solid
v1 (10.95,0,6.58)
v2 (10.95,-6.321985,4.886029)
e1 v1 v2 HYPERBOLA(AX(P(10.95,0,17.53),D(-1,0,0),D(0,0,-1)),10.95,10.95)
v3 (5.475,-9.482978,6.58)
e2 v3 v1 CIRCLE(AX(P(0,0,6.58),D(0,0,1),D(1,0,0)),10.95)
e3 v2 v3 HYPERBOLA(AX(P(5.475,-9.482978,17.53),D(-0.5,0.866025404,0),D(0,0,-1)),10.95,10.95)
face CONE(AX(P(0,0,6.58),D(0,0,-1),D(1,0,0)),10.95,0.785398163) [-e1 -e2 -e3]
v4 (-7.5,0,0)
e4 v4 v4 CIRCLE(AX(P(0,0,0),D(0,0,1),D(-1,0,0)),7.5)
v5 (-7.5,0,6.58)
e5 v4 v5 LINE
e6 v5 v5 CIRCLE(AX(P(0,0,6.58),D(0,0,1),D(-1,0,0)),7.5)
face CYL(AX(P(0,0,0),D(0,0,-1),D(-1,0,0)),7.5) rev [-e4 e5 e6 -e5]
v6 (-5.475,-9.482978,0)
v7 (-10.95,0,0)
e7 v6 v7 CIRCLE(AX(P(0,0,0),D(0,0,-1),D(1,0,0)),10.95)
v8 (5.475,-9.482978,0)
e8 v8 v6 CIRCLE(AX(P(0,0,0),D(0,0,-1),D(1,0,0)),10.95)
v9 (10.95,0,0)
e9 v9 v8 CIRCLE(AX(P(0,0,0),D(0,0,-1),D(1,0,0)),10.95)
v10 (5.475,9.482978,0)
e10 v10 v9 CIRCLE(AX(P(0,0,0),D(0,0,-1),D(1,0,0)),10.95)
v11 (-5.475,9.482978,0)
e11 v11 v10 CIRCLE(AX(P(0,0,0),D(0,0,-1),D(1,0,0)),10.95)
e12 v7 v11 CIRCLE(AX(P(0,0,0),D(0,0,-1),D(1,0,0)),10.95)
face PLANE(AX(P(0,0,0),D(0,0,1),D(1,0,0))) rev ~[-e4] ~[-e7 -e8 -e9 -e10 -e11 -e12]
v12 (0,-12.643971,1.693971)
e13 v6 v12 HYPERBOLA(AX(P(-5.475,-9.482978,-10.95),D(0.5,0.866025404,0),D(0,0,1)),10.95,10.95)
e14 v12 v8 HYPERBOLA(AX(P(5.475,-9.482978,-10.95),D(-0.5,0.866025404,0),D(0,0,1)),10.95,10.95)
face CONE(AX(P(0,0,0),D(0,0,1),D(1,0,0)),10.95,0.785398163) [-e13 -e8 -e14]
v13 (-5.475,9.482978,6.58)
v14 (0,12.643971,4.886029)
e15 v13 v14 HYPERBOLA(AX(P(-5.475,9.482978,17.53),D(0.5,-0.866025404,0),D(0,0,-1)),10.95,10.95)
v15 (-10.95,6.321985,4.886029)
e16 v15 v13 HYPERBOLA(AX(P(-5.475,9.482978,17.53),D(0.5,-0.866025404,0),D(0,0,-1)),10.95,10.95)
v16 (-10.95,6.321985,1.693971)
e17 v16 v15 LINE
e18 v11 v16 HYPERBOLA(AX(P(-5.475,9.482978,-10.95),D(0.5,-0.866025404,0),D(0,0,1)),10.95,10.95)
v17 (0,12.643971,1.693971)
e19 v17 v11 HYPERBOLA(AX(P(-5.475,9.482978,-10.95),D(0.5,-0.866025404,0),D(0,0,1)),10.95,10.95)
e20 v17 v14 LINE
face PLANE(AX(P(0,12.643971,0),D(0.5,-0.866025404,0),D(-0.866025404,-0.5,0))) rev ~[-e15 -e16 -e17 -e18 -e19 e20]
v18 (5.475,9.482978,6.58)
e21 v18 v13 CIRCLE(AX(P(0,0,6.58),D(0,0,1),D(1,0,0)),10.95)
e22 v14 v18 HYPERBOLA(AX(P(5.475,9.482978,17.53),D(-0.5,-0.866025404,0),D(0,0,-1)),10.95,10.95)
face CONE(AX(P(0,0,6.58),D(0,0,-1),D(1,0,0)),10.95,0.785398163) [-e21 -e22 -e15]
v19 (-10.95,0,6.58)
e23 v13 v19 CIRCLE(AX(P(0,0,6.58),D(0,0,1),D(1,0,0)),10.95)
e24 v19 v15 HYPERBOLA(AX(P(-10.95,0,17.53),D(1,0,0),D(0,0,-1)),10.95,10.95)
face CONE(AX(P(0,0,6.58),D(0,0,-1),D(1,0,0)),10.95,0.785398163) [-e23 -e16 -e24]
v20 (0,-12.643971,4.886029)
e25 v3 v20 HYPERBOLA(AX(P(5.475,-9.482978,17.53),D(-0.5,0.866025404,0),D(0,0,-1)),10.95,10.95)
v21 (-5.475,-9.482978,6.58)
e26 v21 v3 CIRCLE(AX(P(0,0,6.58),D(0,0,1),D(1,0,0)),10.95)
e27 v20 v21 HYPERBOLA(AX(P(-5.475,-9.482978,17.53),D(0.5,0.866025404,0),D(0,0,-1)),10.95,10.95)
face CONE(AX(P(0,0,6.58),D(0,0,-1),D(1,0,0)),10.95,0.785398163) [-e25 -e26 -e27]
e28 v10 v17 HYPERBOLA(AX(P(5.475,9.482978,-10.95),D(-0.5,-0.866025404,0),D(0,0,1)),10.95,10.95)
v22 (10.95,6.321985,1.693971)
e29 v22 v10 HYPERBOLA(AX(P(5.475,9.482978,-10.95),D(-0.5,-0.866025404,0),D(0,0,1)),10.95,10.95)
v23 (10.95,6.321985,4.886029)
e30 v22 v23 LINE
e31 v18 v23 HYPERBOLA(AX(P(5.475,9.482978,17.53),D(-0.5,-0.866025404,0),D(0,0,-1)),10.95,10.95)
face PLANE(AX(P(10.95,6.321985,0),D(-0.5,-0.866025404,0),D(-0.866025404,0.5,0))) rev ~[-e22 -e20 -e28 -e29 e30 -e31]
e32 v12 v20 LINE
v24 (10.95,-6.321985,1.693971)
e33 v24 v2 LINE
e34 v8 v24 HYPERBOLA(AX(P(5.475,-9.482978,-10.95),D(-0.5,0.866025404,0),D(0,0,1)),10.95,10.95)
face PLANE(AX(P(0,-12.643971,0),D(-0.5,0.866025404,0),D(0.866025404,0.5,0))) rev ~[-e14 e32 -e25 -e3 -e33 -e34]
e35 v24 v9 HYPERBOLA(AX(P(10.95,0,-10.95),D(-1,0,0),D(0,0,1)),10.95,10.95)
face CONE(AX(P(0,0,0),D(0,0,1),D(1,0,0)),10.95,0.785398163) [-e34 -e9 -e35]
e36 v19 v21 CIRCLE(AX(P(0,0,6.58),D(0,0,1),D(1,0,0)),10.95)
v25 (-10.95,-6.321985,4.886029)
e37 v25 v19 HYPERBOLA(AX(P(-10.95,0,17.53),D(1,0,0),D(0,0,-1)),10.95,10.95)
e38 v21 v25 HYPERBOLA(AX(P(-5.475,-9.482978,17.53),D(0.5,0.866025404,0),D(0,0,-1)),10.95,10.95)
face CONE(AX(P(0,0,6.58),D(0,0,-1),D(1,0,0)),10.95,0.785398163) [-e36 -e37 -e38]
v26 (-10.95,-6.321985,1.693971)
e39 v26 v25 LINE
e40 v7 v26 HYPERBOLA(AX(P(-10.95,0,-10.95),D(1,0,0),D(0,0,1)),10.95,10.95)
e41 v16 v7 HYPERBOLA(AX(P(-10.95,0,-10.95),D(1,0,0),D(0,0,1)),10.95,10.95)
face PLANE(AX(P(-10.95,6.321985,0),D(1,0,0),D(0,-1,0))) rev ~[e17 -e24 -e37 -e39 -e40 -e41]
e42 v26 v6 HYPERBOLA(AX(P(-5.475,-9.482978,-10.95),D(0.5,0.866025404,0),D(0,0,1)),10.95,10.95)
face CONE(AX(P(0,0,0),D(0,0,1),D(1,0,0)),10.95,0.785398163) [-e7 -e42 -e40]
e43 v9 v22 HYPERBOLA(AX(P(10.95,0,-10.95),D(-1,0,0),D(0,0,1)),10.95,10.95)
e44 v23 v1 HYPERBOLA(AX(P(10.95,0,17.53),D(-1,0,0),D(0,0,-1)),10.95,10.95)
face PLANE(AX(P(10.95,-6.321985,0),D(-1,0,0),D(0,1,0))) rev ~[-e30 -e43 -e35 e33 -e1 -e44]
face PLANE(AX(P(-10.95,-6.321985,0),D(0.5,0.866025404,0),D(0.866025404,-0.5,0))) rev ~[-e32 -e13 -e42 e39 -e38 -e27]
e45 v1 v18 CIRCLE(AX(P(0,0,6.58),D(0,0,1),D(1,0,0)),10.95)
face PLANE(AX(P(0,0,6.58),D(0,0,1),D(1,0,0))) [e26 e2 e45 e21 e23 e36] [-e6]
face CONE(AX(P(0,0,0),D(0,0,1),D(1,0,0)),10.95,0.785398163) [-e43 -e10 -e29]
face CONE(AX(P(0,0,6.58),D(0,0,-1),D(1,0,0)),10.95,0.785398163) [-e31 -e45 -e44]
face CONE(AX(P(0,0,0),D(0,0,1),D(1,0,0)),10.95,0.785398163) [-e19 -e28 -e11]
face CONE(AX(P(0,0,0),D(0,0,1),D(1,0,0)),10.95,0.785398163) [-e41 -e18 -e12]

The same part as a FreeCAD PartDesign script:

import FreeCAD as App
import Part
import Sketcher
from FreeCAD import Vector
Q = App.Units.Quantity


def faces_at(feature, points):
    """Names of the faces that lie closest to the given points."""
    faces = feature.Shape.Faces
    near = lambda p: min(range(len(faces)), key=lambda i: faces[i].distToShape(Part.Vertex(*p))[0])
    return sorted({f"Face{near(p) + 1}" for p in points})

doc = App.newDocument("Part")
body = doc.addObject("PartDesign::Body", "Body")

sketch1 = body.newObject("Sketcher::SketchObject", "Sketch")
sketch1.AttachmentSupport = (doc.getObject("XY_Plane"), [""])
sketch1.MapMode = "FlatFace"
sketch1.addGeometry(Part.LineSegment(Vector(0, 12.643971, 0), Vector(-10.95, 6.321985, 0)), False)
sketch1.addGeometry(Part.LineSegment(Vector(-10.95, 6.321985, 0), Vector(-10.95, -6.321985, 0)), False)
sketch1.addGeometry(Part.LineSegment(Vector(-10.95, -6.321985, 0), Vector(0, -12.643971, 0)), False)
sketch1.addGeometry(Part.LineSegment(Vector(0, -12.643971, 0), Vector(10.95, -6.321985, 0)), False)
sketch1.addGeometry(Part.LineSegment(Vector(10.95, -6.321985, 0), Vector(10.95, 6.321985, 0)), False)
sketch1.addGeometry(Part.LineSegment(Vector(10.95, 6.321985, 0), Vector(0, 12.643971, 0)), False)
sketch1.addGeometry(Part.Circle(Vector(0, 0, 0), Vector(0, 0, 1), 7.5), False)
sketch1.addConstraint(Sketcher.Constraint("Coincident", 0, 2, 1, 1))
sketch1.addConstraint(Sketcher.Constraint("Coincident", 1, 2, 2, 1))
sketch1.addConstraint(Sketcher.Constraint("Coincident", 2, 2, 3, 1))
sketch1.addConstraint(Sketcher.Constraint("Coincident", 3, 2, 4, 1))
sketch1.addConstraint(Sketcher.Constraint("Coincident", 4, 2, 5, 1))
sketch1.addConstraint(Sketcher.Constraint("Coincident", 5, 2, 0, 1))
sketch1.addConstraint(Sketcher.Constraint("Vertical", 1))
sketch1.addConstraint(Sketcher.Constraint("Vertical", 4))
sketch1.addConstraint(Sketcher.Constraint("Coincident", 6, 3, -1, 1))
sketch1.addConstraint(Sketcher.Constraint("Symmetric", 0, 2, 3, 2, -1, 1))
sketch1.addConstraint(Sketcher.Constraint("Symmetric", 2, 2, 5, 2, -1, 1))
sketch1.addConstraint(Sketcher.Constraint("PointOnObject", 2, 2, -2))
sketch1.addConstraint(Sketcher.Constraint("Parallel", 2, 5))
sketch1.addConstraint(Sketcher.Constraint("Horizontal", 1, 2, 3, 2))
sketch1.addConstraint(Sketcher.Constraint("Diameter", 6, Q("15 mm")))
sketch1.addConstraint(Sketcher.Constraint("Angle", 0, Q("-150 deg")))
sketch1.addConstraint(Sketcher.Constraint("DistanceX", 1, 2, 3, 2, Q("21.9 mm")))
sketch1.addConstraint(Sketcher.Constraint("DistanceY", 1, 2, 1, 1, Q("12.643971 mm")))
pad1 = body.newObject("PartDesign::Pad", "Pad")
pad1.Profile = sketch1
pad1.Length = 6.58
body2 = doc.addObject("PartDesign::Body", "Body001")

sketch2 = body2.newObject("Sketcher::SketchObject", "Sketch001")
sketch2.AttachmentSupport = (doc.getObject("XY_Plane001"), [""])
sketch2.MapMode = "FlatFace"
sketch2.AttachmentOffset = App.Placement(Vector(0, 0, 6.58), App.Rotation())
sketch2.addGeometry(Part.LineSegment(Vector(-21.939, 23.633, 0), Vector(-21.939, -23.633, 0)), False)
sketch2.addGeometry(Part.LineSegment(Vector(-21.939, -23.633, 0), Vector(21.939, -23.633, 0)), False)
sketch2.addGeometry(Part.LineSegment(Vector(21.939, -23.633, 0), Vector(21.939, 23.633, 0)), False)
sketch2.addGeometry(Part.LineSegment(Vector(21.939, 23.633, 0), Vector(-21.939, 23.633, 0)), False)
sketch2.addGeometry(Part.Circle(Vector(0, 0, 0), Vector(0, 0, 1), 10.95), False)
sketch2.addConstraint(Sketcher.Constraint("Coincident", 0, 2, 1, 1))
sketch2.addConstraint(Sketcher.Constraint("Coincident", 1, 2, 2, 1))
sketch2.addConstraint(Sketcher.Constraint("Coincident", 2, 2, 3, 1))
sketch2.addConstraint(Sketcher.Constraint("Coincident", 3, 2, 0, 1))
sketch2.addConstraint(Sketcher.Constraint("Vertical", 0))
sketch2.addConstraint(Sketcher.Constraint("Horizontal", 1))
sketch2.addConstraint(Sketcher.Constraint("Vertical", 2))
sketch2.addConstraint(Sketcher.Constraint("Horizontal", 3))
sketch2.addConstraint(Sketcher.Constraint("Coincident", 4, 3, -1, 1))
sketch2.addConstraint(Sketcher.Constraint("Symmetric", 0, 2, 2, 2, -1, 1))
sketch2.addConstraint(Sketcher.Constraint("Diameter", 4, Q("21.9 mm")))
sketch2.addConstraint(Sketcher.Constraint("DistanceX", 1, 1, 1, 2, Q("43.878 mm")))
sketch2.addConstraint(Sketcher.Constraint("DistanceY", 0, 2, 0, 1, Q("47.266 mm")))
pad2 = body2.newObject("PartDesign::Pad", "Pad001")
pad2.Profile = sketch2
pad2.Length = 6.58
pad2.Reversed = True
doc.recompute()

datumplane = body2.newObject("PartDesign::Plane", "DatumPlane")
datumplane.AttachmentSupport = (doc.getObject("XY_Plane001"), [""])
datumplane.MapMode = "FlatFace"
datumplane.AttachmentOffset = App.Placement(Vector(0, 0, 6.58), App.Rotation())
draft = body2.newObject("PartDesign::Draft", "Draft")
draft.Base = (pad2, faces_at(pad2, [
    (0, -23.633, 3.29),
    (21.939, 0, 3.29),
    (0, 23.633, 3.29),
    (-21.939, 0, 3.29),
    (-10.95, 0, 3.29),
]))
draft.NeutralPlane = (datumplane, [""])
draft.Angle = 45
draft.Reversed = True
doc.recompute()

boolean = body.newObject("PartDesign::Boolean", "Boolean")
boolean.Type = "Cut"
boolean.addObjects([body2])
body3 = doc.addObject("PartDesign::Body", "Body002")

sketch3 = body3.newObject("Sketcher::SketchObject", "Sketch002")
sketch3.AttachmentSupport = (doc.getObject("XY_Plane002"), [""])
sketch3.MapMode = "FlatFace"
sketch3.addGeometry(Part.LineSegment(Vector(-21.939, -23.633, 0), Vector(-21.939, 23.633, 0)), False)
sketch3.addGeometry(Part.LineSegment(Vector(-21.939, 23.633, 0), Vector(21.939, 23.633, 0)), False)
sketch3.addGeometry(Part.LineSegment(Vector(21.939, 23.633, 0), Vector(21.939, -23.633, 0)), False)
sketch3.addGeometry(Part.LineSegment(Vector(21.939, -23.633, 0), Vector(-21.939, -23.633, 0)), False)
sketch3.addGeometry(Part.Circle(Vector(0, 0, 0), Vector(0, 0, 1), 10.95), False)
sketch3.addConstraint(Sketcher.Constraint("Coincident", 0, 2, 1, 1))
sketch3.addConstraint(Sketcher.Constraint("Coincident", 1, 2, 2, 1))
sketch3.addConstraint(Sketcher.Constraint("Coincident", 2, 2, 3, 1))
sketch3.addConstraint(Sketcher.Constraint("Coincident", 3, 2, 0, 1))
sketch3.addConstraint(Sketcher.Constraint("Vertical", 0))
sketch3.addConstraint(Sketcher.Constraint("Horizontal", 1))
sketch3.addConstraint(Sketcher.Constraint("Vertical", 2))
sketch3.addConstraint(Sketcher.Constraint("Horizontal", 3))
sketch3.addConstraint(Sketcher.Constraint("Coincident", 4, 3, -1, 1))
sketch3.addConstraint(Sketcher.Constraint("Symmetric", 0, 2, 2, 2, -1, 1))
sketch3.addConstraint(Sketcher.Constraint("Diameter", 4, Q("21.9 mm")))
sketch3.addConstraint(Sketcher.Constraint("DistanceX", 1, 1, 1, 2, Q("43.878 mm")))
sketch3.addConstraint(Sketcher.Constraint("DistanceY", 0, 1, 0, 2, Q("47.266 mm")))
pad3 = body3.newObject("PartDesign::Pad", "Pad002")
pad3.Profile = sketch3
pad3.Length = 6.58
doc.recompute()

draft2 = body3.newObject("PartDesign::Draft", "Draft001")
draft2.Base = (pad3, faces_at(pad3, [
    (0, -23.633, 3.29),
    (21.939, 0, 3.29),
    (0, 23.633, 3.29),
    (-21.939, 0, 3.29),
    (-10.95, 0, 3.29),
]))
draft2.NeutralPlane = (doc.getObject("XY_Plane002"), [""])
draft2.Angle = 45
draft2.Reversed = False
doc.recompute()

boolean2 = body.newObject("PartDesign::Boolean", "Boolean001")
boolean2.Type = "Cut"
boolean2.addObjects([body3])

doc.recompute()
